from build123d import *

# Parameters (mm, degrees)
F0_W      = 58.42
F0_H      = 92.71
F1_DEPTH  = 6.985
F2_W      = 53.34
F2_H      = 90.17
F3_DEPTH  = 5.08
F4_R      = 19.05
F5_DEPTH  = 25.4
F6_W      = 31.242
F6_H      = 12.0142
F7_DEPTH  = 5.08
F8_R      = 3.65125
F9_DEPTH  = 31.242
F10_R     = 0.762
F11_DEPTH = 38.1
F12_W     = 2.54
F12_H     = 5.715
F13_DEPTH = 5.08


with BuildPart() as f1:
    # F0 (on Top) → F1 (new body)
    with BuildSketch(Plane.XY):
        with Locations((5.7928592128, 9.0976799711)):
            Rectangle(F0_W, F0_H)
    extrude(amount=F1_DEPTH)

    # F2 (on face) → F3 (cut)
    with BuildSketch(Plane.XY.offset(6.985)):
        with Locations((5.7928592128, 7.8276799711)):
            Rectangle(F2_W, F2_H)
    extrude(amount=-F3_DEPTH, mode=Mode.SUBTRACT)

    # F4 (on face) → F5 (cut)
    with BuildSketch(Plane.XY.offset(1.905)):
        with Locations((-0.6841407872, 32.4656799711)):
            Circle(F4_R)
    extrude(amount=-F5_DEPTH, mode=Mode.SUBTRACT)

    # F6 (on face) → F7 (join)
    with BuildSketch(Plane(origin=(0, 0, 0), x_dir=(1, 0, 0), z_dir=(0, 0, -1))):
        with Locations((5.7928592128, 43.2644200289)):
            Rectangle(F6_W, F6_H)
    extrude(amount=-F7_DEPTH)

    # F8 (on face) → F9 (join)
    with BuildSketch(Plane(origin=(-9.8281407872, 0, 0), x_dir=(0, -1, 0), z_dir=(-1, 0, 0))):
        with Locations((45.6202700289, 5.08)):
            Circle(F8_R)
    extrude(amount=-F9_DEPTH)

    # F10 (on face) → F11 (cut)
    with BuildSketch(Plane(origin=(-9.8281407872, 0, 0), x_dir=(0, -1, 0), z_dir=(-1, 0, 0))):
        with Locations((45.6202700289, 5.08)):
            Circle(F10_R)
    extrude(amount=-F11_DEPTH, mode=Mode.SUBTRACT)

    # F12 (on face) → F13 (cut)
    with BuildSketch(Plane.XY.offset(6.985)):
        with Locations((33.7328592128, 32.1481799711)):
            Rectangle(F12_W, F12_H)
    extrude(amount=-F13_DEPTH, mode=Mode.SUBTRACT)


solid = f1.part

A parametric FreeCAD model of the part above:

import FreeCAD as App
import Part
import Sketcher
Q = App.Units.Quantity


def add_polygon(sketch, points):
    """Adds a closed chain of lines whose ends are joined by coincident constraints."""
    first, n = sketch.GeometryCount, len(points)
    for a, b in zip(points, points[1:] + points[:1]):
        sketch.addGeometry(Part.LineSegment(App.Vector(*a, 0), App.Vector(*b, 0)), False)
    for i in range(n):
        sketch.addConstraint(Sketcher.Constraint("Coincident", first + i, 2, first + (i + 1) % n, 1))

doc = App.newDocument("Part")
body = doc.addObject("PartDesign::Body", "Body")

# Sketch on XY plane
sketch1 = body.newObject("Sketcher::SketchObject", "Sketch")
sketch1.AttachmentSupport = (doc.getObject("XY_Plane"), [""])
sketch1.MapMode = "FlatFace"
add_polygon(sketch1, [(-23, 55), (-23, -37), (35, -37), (35, 55)])  # lines 0-3
sketch1.addConstraint([
    Sketcher.Constraint("Vertical", 0),
    Sketcher.Constraint("Horizontal", 1),
    Sketcher.Constraint("Vertical", 2),
    Sketcher.Constraint("Horizontal", 3),
    Sketcher.Constraint("DistanceX", 1, 1, 1, 2, Q("2.3 in")),
    Sketcher.Constraint("DistanceY", 0, 2, 0, 1, Q("3.65 in")),
    Sketcher.Constraint("DistanceX", 0, 2, -1, 1, Q("23.417141 mm")),
    Sketcher.Constraint("DistanceY", 0, 2, -1, 1, Q("37.25732 mm")),
])
pad1 = body.newObject("PartDesign::Pad", "Pad")
pad1.Profile = sketch1
pad1.Length = Q("0.275 in")

# Sketch on XY plane
sketch2 = body.newObject("Sketcher::SketchObject", "Sketch001")
sketch2.AttachmentSupport = (doc.getObject("XY_Plane"), [""])
sketch2.MapMode = "FlatFace"
sketch2.AttachmentOffset = App.Placement(App.Vector(0, 0, 0.275 * 25.4), App.Rotation())
add_polygon(sketch2, [(-21, 53), (-21, -37), (32, -37), (32, 53)])  # lines 0-3
sketch2.addConstraint([
    Sketcher.Constraint("Vertical", 0),
    Sketcher.Constraint("Horizontal", 1),
    Sketcher.Constraint("Vertical", 2),
    Sketcher.Constraint("Horizontal", 3),
    Sketcher.Constraint("DistanceX", 1, 1, 1, 2, Q("2.1 in")),
    Sketcher.Constraint("DistanceY", 0, 2, 0, 1, Q("3.55 in")),
    Sketcher.Constraint("DistanceX", 0, 2, -1, 1, Q("20.877141 mm")),
    Sketcher.Constraint("DistanceY", 0, 2, -1, 1, Q("37.25732 mm")),
])
pocket1 = body.newObject("PartDesign::Pocket", "Pocket")
pocket1.Profile = sketch2
pocket1.Length = Q("0.2 in")

# Sketch on XY plane
sketch3 = body.newObject("Sketcher::SketchObject", "Sketch002")
sketch3.AttachmentSupport = (doc.getObject("XY_Plane"), [""])
sketch3.MapMode = "FlatFace"
sketch3.AttachmentOffset = App.Placement(App.Vector(0, 0, 0.075 * 25.4), App.Rotation())
sketch3.addGeometry(Part.Circle(App.Vector(-1, 32, 0), App.Vector(0, 0, 1), 19), False)
sketch3.addConstraint([
    Sketcher.Constraint("Diameter", 0, Q("1.5 in")),
    Sketcher.Constraint("DistanceX", 0, 3, -1, 1, Q("0.684141 mm")),
    Sketcher.Constraint("DistanceY", -1, 1, 0, 3, Q("32.46568 mm")),
])
pocket2 = body.newObject("PartDesign::Pocket", "Pocket001")
pocket2.Profile = sketch3
pocket2.Length = Q("1 in")

# Sketch on XY plane
sketch4 = body.newObject("Sketcher::SketchObject", "Sketch003")
sketch4.AttachmentSupport = (doc.getObject("XY_Plane"), [""])
sketch4.MapMode = "FlatFace"
add_polygon(sketch4, [(-10, -49), (-10, -37), (21, -37), (21, -49)])  # lines 0-3
sketch4.addConstraint([
    Sketcher.Constraint("Vertical", 0),
    Sketcher.Constraint("Horizontal", 1),
    Sketcher.Constraint("Vertical", 2),
    Sketcher.Constraint("Horizontal", 3),
    Sketcher.Constraint("DistanceX", 1, 1, 1, 2, Q("1.23 in")),
    Sketcher.Constraint("DistanceY", 0, 1, 0, 2, Q("0.473 in")),
    Sketcher.Constraint("DistanceX", 0, 2, -1, 1, Q("9.828141 mm")),
    Sketcher.Constraint("DistanceY", 0, 2, -1, 1, Q("37.25732 mm")),
])
pad2 = body.newObject("PartDesign::Pad", "Pad001")
pad2.Profile = sketch4
pad2.Length = Q("0.2 in")

# Sketch on YZ plane
sketch5 = body.newObject("Sketcher::SketchObject", "Sketch004")
sketch5.AttachmentSupport = (doc.getObject("YZ_Plane"), [""])
sketch5.MapMode = "FlatFace"
sketch5.AttachmentOffset = App.Placement(App.Vector(0, 0, -9.828141), App.Rotation())
sketch5.addGeometry(Part.Circle(App.Vector(-45.6, 5.1, 0), App.Vector(0, 0, 1), 3.7), False)
sketch5.addConstraint([
    Sketcher.Constraint("Diameter", 0, Q("0.2875 in")),
    Sketcher.Constraint("DistanceY", -1, 1, 0, 3, Q("0.2 in")),
    Sketcher.Constraint("DistanceX", 0, 3, -1, 1, Q("45.62027 mm")),
])
pad3 = body.newObject("PartDesign::Pad", "Pad002")
pad3.Profile = sketch5
pad3.Length = Q("1.23 in")

# Sketch on YZ plane
sketch6 = body.newObject("Sketcher::SketchObject", "Sketch005")
sketch6.AttachmentSupport = (doc.getObject("YZ_Plane"), [""])
sketch6.MapMode = "FlatFace"
sketch6.AttachmentOffset = App.Placement(App.Vector(0, 0, -9.828141), App.Rotation())
sketch6.addGeometry(Part.Circle(App.Vector(-45.6, 5.1, 0), App.Vector(0, 0, 1), 0.8), False)
sketch6.addConstraint([
    Sketcher.Constraint("Diameter", 0, Q("0.06 in")),
    Sketcher.Constraint("DistanceY", -1, 1, 0, 3, Q("0.2 in")),
    Sketcher.Constraint("DistanceX", 0, 3, -1, 1, Q("45.62027 mm")),
])
pocket3 = body.newObject("PartDesign::Pocket", "Pocket002")
pocket3.Profile = sketch6
pocket3.Length = Q("1.5 in")
pocket3.Reversed = True

# Sketch on XY plane
sketch7 = body.newObject("Sketcher::SketchObject", "Sketch006")
sketch7.AttachmentSupport = (doc.getObject("XY_Plane"), [""])
sketch7.MapMode = "FlatFace"
sketch7.AttachmentOffset = App.Placement(App.Vector(0, 0, 0.275 * 25.4), App.Rotation())
add_polygon(sketch7, [(32.5, 35), (32.5, 29.3), (35, 29.3), (35, 35)])  # lines 0-3
sketch7.addConstraint([
    Sketcher.Constraint("Vertical", 0),
    Sketcher.Constraint("Horizontal", 1),
    Sketcher.Constraint("Vertical", 2),
    Sketcher.Constraint("Horizontal", 3),
    Sketcher.Constraint("DistanceX", 1, 1, 1, 2, Q("0.1 in")),
    Sketcher.Constraint("DistanceY", 0, 2, 0, 1, Q("0.225 in")),
    Sketcher.Constraint("DistanceX", -1, 1, 0, 2, Q("32.462859 mm")),
    Sketcher.Constraint("DistanceY", -1, 1, 0, 2, Q("29.29068 mm")),
])
pocket4 = body.newObject("PartDesign::Pocket", "Pocket003")
pocket4.Profile = sketch7
pocket4.Length = Q("0.2 in")

doc.recompute()
